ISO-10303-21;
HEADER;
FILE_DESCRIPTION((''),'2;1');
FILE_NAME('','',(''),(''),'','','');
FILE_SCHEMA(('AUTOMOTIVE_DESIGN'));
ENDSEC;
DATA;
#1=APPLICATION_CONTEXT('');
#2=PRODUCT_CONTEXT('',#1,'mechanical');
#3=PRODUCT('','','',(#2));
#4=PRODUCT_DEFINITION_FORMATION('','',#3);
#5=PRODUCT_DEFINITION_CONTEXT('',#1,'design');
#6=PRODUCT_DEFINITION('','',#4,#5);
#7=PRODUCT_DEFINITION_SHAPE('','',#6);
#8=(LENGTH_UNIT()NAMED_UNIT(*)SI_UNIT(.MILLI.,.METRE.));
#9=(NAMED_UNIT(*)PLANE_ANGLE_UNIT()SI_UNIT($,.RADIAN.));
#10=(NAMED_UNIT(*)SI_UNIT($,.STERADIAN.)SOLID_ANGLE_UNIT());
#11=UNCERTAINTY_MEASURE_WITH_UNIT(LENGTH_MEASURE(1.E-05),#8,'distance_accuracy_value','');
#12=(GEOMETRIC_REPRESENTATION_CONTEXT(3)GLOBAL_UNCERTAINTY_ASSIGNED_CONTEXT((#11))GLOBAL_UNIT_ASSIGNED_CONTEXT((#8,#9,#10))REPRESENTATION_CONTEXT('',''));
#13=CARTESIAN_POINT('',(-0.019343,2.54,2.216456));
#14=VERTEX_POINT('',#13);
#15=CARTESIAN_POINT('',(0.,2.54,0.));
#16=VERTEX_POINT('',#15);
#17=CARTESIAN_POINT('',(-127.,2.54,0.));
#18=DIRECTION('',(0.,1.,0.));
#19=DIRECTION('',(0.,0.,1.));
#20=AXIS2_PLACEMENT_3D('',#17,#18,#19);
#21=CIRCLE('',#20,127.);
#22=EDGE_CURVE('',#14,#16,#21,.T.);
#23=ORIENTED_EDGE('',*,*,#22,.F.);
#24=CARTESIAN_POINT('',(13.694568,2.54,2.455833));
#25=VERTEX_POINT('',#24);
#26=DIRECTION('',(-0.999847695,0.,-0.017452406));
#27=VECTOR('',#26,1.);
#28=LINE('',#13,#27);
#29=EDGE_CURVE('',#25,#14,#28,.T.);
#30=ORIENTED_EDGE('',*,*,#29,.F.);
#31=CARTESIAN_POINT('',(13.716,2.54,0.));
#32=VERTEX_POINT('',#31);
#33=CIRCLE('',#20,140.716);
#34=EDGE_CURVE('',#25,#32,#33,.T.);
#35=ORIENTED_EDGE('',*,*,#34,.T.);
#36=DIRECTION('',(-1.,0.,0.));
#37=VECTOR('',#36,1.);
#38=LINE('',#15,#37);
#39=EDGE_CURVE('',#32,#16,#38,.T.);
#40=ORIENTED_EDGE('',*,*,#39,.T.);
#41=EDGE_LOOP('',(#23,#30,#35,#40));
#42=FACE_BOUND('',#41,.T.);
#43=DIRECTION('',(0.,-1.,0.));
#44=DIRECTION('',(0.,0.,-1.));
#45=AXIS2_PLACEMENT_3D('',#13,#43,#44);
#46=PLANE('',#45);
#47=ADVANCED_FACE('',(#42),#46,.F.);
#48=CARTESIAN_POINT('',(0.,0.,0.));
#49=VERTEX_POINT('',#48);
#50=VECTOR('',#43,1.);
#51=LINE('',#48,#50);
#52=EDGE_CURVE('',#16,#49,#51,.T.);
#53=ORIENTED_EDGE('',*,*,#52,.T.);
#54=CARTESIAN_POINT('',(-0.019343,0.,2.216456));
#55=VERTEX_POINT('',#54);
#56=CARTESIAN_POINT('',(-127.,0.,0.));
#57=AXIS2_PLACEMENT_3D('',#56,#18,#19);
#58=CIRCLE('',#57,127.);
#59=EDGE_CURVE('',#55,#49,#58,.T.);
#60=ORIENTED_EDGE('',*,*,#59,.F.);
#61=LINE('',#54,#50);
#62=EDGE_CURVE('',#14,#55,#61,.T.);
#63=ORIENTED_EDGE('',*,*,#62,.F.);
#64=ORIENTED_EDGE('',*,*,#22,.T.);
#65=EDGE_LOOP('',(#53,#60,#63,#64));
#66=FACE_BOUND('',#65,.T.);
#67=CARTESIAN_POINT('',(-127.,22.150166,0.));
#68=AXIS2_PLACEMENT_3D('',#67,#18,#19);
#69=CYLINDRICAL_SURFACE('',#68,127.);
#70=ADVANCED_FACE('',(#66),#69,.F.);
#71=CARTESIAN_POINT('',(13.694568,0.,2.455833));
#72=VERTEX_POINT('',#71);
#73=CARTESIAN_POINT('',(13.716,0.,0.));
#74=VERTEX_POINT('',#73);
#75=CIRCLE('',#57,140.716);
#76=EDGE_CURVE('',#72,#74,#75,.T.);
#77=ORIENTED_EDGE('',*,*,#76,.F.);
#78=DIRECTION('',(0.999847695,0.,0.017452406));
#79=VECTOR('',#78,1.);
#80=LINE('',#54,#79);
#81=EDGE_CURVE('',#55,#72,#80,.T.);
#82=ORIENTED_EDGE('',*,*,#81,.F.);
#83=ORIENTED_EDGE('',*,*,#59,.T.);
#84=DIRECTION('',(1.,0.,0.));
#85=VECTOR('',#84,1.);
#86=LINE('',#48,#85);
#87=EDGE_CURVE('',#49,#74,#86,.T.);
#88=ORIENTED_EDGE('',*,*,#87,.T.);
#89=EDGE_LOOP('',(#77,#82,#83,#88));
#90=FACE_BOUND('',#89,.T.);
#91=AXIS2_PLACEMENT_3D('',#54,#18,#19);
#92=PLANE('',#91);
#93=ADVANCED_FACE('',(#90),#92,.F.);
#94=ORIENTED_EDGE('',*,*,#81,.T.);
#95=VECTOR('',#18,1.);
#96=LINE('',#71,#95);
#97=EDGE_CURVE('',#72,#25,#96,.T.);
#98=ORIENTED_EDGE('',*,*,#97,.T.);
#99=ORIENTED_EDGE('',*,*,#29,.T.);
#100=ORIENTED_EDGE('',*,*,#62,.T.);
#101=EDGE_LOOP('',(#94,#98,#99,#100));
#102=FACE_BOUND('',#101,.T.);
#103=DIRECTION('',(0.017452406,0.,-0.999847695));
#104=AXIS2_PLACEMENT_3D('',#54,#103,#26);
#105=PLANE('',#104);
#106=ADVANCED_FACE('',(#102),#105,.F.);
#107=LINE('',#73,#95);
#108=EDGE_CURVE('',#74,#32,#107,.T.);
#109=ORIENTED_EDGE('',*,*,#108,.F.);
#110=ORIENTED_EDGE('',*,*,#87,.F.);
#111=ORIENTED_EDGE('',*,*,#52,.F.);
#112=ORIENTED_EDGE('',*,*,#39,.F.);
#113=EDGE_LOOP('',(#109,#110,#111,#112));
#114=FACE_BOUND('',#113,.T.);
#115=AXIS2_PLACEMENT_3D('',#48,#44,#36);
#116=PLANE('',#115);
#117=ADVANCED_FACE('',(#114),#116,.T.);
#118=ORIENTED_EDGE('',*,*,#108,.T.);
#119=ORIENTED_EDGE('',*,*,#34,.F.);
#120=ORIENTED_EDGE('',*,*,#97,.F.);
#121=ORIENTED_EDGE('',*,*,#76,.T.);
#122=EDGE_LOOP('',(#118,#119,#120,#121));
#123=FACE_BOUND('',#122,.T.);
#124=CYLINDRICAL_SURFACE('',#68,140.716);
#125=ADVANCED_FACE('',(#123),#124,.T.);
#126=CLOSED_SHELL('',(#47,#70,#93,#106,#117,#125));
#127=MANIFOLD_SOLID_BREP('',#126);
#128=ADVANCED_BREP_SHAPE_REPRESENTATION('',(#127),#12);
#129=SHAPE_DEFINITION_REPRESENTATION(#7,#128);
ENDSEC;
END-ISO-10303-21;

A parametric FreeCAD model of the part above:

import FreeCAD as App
import Part
import Sketcher

V = App.Vector
Q = App.Units.Quantity

doc = App.newDocument("Part")
params = doc.addObject("Spreadsheet::Sheet", "Params")
for row, (alias, value) in enumerate([
    ("sketch1_height", "0.1 in"),
    ("sketch1_width", "0.54 in"),
    ("revolution_angle", "1 deg"),
], start=1):
    params.set(f"A{row}", alias)
    params.set(f"B{row}", "=" + value)
    params.setAlias(f"B{row}", alias)

body = doc.addObject("PartDesign::Body", "Body")

# Sketch on XY plane
sketch1 = doc.addObject("Sketcher::SketchObject", "Sketch")
body.addObject(sketch1)
sketch1.AttachmentSupport = (doc.XY_Plane, [""])
sketch1.MapMode = "FlatFace"
sketch1.addGeometry([
    Part.LineSegment(V(0, 2.5, 0), V(0, 0, 0)),
    Part.LineSegment(V(0, 0, 0), V(13.7, 0, 0)),
    Part.LineSegment(V(13.7, 0, 0), V(13.7, 2.5, 0)),
    Part.LineSegment(V(13.7, 2.5, 0), V(0, 2.5, 0)),
], False)
sketch1.addGeometry(Part.LineSegment(V(-127, 2.5, 0), V(-127, 0, 0)), True)  # axis
sketch1.addConstraint([
    Sketcher.Constraint("Coincident", 0, 2, 1, 1),
    Sketcher.Constraint("Coincident", 1, 2, 2, 1),
    Sketcher.Constraint("Coincident", 2, 2, 3, 1),
    Sketcher.Constraint("Coincident", 3, 2, 0, 1),
    Sketcher.Constraint("Vertical", 0),
    Sketcher.Constraint("Horizontal", 1),
    Sketcher.Constraint("Vertical", 2),
    Sketcher.Constraint("Horizontal", 3),
    Sketcher.Constraint("Vertical", 4),
    Sketcher.Constraint("Coincident", 0, 2, -1, 1),
    Sketcher.Constraint("PointOnObject", 4, 2, -1),
    Sketcher.Constraint("Horizontal", 3, 2, 4, 1),
    Sketcher.Constraint("DistanceY", 0, 2, 0, 1, Q("0.1 in")),
    Sketcher.Constraint("DistanceX", 4, 1, -1, 1, Q("5 in")),
    Sketcher.Constraint("DistanceX", 1, 1, 1, 2, Q("0.54 in")),
])
sketch1.setExpression("Constraints[12]", "Params.sketch1_height")
sketch1.setExpression("Constraints[14]", "Params.sketch1_width")
revolution = doc.addObject("PartDesign::Revolution", "Revolution")
body.addObject(revolution)
revolution.Profile = sketch1
revolution.ReferenceAxis = (sketch1, ["Axis0"])
revolution.setExpression("Angle", "Params.revolution_angle")

doc.recompute()
